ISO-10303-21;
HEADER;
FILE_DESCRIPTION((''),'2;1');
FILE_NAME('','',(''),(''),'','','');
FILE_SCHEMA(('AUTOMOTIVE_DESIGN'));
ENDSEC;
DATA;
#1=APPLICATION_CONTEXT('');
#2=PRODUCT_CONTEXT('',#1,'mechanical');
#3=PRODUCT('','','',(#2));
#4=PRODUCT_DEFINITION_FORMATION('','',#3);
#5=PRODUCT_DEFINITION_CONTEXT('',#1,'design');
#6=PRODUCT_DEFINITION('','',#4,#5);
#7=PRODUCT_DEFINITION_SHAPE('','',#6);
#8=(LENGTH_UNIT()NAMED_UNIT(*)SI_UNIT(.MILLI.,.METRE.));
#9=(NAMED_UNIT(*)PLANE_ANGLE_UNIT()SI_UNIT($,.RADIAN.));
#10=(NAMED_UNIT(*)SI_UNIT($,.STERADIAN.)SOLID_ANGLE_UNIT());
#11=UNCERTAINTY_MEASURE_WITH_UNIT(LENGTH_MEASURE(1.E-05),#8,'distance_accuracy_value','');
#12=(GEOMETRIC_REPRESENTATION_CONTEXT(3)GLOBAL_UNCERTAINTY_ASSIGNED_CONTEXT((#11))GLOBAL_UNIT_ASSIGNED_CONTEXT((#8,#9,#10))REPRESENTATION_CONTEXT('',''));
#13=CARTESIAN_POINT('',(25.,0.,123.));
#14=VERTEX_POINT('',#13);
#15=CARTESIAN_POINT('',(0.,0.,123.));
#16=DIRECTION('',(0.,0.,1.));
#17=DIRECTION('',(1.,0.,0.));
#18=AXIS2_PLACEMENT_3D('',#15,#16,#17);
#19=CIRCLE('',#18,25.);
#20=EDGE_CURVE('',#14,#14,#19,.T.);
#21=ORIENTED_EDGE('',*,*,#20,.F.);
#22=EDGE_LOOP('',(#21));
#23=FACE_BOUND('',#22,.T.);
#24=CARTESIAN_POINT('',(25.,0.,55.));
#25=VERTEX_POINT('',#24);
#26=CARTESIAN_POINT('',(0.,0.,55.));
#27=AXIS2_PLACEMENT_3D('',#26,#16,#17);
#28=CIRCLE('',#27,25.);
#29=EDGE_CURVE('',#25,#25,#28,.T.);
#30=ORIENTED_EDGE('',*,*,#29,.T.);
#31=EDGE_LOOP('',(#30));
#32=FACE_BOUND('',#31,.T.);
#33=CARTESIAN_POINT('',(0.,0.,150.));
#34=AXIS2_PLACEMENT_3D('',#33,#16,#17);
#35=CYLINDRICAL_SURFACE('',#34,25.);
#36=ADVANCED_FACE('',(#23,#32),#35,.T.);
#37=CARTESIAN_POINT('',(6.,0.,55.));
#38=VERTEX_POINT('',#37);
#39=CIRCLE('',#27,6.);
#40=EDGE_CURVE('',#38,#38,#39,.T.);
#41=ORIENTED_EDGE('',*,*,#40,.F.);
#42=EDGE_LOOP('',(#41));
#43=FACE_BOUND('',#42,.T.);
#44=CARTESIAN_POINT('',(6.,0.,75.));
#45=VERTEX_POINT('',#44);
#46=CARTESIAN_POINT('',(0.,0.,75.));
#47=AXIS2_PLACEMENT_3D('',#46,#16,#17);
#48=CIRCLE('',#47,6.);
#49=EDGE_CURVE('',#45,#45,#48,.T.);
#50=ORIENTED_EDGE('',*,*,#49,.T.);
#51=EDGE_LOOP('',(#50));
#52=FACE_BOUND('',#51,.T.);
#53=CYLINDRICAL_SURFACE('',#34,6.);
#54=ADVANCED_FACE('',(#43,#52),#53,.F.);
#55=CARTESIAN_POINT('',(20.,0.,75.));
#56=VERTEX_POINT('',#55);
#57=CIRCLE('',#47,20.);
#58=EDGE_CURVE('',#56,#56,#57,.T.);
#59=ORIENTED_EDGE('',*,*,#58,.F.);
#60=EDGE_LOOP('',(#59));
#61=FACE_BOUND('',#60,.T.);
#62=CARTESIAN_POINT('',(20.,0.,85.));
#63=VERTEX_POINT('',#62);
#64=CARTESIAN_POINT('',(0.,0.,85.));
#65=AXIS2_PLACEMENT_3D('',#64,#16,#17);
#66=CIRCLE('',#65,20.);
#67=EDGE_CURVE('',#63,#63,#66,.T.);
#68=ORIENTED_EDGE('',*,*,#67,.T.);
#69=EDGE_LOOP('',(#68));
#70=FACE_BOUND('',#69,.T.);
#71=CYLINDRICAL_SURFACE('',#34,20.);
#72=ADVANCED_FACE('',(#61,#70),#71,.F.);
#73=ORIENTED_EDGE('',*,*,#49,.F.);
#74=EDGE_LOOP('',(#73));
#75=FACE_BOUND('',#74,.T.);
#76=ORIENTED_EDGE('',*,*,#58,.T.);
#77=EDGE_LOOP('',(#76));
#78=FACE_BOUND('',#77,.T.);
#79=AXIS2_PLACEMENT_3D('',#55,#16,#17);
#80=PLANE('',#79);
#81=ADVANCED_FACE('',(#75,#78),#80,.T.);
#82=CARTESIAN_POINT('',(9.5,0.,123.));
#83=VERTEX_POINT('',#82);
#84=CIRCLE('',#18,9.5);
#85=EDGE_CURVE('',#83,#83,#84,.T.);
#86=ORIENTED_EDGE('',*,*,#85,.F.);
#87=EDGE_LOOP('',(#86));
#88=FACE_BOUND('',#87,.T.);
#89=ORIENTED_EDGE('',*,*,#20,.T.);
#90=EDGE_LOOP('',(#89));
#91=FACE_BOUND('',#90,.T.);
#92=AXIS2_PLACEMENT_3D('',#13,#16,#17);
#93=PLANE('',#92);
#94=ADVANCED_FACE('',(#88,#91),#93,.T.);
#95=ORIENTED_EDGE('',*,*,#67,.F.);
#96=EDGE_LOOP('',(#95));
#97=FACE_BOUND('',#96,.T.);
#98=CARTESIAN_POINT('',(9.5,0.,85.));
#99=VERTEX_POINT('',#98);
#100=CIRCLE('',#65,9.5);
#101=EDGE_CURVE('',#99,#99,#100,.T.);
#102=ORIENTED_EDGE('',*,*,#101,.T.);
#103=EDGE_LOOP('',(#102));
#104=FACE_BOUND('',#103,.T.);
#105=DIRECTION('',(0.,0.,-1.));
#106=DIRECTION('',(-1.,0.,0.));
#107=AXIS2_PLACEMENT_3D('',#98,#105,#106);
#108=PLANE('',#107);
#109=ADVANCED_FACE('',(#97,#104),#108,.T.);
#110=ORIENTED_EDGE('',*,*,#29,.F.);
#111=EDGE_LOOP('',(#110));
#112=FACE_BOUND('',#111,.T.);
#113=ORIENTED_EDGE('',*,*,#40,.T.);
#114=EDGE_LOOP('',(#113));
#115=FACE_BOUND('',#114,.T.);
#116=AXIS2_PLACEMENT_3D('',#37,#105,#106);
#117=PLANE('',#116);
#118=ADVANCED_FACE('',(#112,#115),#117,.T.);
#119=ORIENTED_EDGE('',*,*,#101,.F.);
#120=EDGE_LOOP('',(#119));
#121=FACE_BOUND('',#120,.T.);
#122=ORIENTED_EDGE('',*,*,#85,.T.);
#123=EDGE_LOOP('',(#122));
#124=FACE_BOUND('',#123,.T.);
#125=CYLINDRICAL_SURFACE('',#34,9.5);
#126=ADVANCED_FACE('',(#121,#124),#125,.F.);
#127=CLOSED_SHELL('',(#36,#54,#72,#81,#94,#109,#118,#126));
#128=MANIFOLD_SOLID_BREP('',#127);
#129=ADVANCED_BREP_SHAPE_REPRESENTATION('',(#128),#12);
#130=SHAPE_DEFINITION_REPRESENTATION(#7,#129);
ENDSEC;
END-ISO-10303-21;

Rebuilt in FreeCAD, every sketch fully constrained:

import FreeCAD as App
import Part
import Sketcher
from FreeCAD import Vector


def add_polygon(sketch, points):
    """Adds a closed chain of lines whose ends are joined by coincident constraints."""
    first, n = sketch.GeometryCount, len(points)
    for a, b in zip(points, points[1:] + points[:1]):
        sketch.addGeometry(Part.LineSegment(App.Vector(*a, 0), App.Vector(*b, 0)), False)
    for i in range(n):
        sketch.addConstraint(Sketcher.Constraint("Coincident", first + i, 2, first + (i + 1) % n, 1))

doc = App.newDocument("Part")
body = doc.addObject("PartDesign::Body", "Body")

sketch1 = body.newObject("Sketcher::SketchObject", "Sketch")
sketch1.AttachmentSupport = (doc.getObject("XZ_Plane"), [""])
sketch1.MapMode = "FlatFace"
add_polygon(sketch1, [(25, 55), (6, 55), (6, 75), (20, 75), (20, 85), (9.5, 85), (9.5, 123), (25, 123)])
sketch1.addConstraint(Sketcher.Constraint("Horizontal", 0))
sketch1.addConstraint(Sketcher.Constraint("Vertical", 1))
sketch1.addConstraint(Sketcher.Constraint("Horizontal", 2))
sketch1.addConstraint(Sketcher.Constraint("Vertical", 3))
sketch1.addConstraint(Sketcher.Constraint("Horizontal", 4))
sketch1.addConstraint(Sketcher.Constraint("Vertical", 5))
sketch1.addConstraint(Sketcher.Constraint("Horizontal", 6))
sketch1.addConstraint(Sketcher.Constraint("Vertical", 7))
sketch1.addConstraint(Sketcher.Constraint("DistanceX", 0, 2, 0, 1, 19.0))
sketch1.addConstraint(Sketcher.Constraint("DistanceX", 2, 1, 2, 2, 14.0))
sketch1.addConstraint(Sketcher.Constraint("DistanceY", 1, 1, 1, 2, 20.0))
sketch1.addConstraint(Sketcher.Constraint("DistanceY", 3, 1, 3, 2, 10.0))
sketch1.addConstraint(Sketcher.Constraint("DistanceY", 5, 1, 5, 2, 38.0))
sketch1.addConstraint(Sketcher.Constraint("DistanceX", 4, 2, 4, 1, 10.5))
sketch1.addConstraint(Sketcher.Constraint("DistanceX", -1, 1, 0, 2, 6.0))
sketch1.addConstraint(Sketcher.Constraint("DistanceY", -1, 1, 0, 2, 55.0))
revolution = body.newObject("PartDesign::Revolution", "Revolution")
revolution.Profile = sketch1
revolution.ReferenceAxis = (sketch1, ["V_Axis"])
revolution.Angle = 360

doc.recompute()
